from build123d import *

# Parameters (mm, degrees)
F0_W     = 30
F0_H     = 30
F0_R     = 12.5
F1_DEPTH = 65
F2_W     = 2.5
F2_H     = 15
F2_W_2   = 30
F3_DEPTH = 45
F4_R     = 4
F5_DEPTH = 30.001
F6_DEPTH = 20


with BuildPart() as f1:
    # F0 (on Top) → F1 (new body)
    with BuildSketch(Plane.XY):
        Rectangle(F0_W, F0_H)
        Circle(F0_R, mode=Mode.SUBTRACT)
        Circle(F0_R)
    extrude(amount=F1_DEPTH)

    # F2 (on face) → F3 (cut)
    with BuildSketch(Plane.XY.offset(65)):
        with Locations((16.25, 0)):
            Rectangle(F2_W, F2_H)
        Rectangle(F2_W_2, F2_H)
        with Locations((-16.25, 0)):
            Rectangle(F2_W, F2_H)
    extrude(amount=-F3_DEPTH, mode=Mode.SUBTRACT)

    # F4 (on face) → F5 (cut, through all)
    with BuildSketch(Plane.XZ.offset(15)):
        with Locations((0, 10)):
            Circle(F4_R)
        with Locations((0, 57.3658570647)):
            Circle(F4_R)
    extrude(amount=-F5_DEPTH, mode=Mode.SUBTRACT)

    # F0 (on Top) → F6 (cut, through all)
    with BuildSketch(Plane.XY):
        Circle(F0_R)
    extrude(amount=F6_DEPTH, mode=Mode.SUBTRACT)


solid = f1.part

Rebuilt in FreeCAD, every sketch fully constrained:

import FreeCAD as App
import Part
import Sketcher


def add_polygon(sketch, points):
    """Adds a closed chain of lines whose ends are joined by coincident constraints."""
    first, n = sketch.GeometryCount, len(points)
    for a, b in zip(points, points[1:] + points[:1]):
        sketch.addGeometry(Part.LineSegment(App.Vector(*a, 0), App.Vector(*b, 0)), False)
    for i in range(n):
        sketch.addConstraint(Sketcher.Constraint("Coincident", first + i, 2, first + (i + 1) % n, 1))

doc = App.newDocument("Part")
body = doc.addObject("PartDesign::Body", "Body")

# Sketch on XY plane
sketch1 = body.newObject("Sketcher::SketchObject", "Sketch")
sketch1.AttachmentSupport = (doc.getObject("XY_Plane"), [""])
sketch1.MapMode = "FlatFace"
add_polygon(sketch1, [(-15, 15), (-15, -15), (15, -15), (15, 15)])  # lines 0-3
sketch1.addConstraint([
    Sketcher.Constraint("Vertical", 0),
    Sketcher.Constraint("Horizontal", 1),
    Sketcher.Constraint("Vertical", 2),
    Sketcher.Constraint("Horizontal", 3),
    Sketcher.Constraint("Symmetric", 0, 2, 2, 2, -1, 1),
    Sketcher.Constraint("Equal", 3, 0),
    Sketcher.Constraint("DistanceX", 1, 1, 1, 2, 30.0),
])
pad1 = body.newObject("PartDesign::Pad", "Pad")
pad1.Profile = sketch1
pad1.Length = 65

# Sketch on XY plane
sketch2 = body.newObject("Sketcher::SketchObject", "Sketch001")
sketch2.AttachmentSupport = (doc.getObject("XY_Plane"), [""])
sketch2.MapMode = "FlatFace"
sketch2.AttachmentOffset = App.Placement(App.Vector(0, 0, 65), App.Rotation())
add_polygon(sketch2, [(18, -8), (18, 8), (-18, 8), (-18, -8)])  # lines 0-3
sketch2.addConstraint([
    Sketcher.Constraint("Vertical", 0),
    Sketcher.Constraint("Horizontal", 1),
    Sketcher.Constraint("Vertical", 2),
    Sketcher.Constraint("Horizontal", 3),
    Sketcher.Constraint("Symmetric", 0, 2, 2, 2, -1, 1),
    Sketcher.Constraint("DistanceX", 1, 2, 1, 1, 35.0),
    Sketcher.Constraint("DistanceY", 0, 1, 0, 2, 15.0),
])
pocket1 = body.newObject("PartDesign::Pocket", "Pocket")
pocket1.Profile = sketch2
pocket1.Length = 45

# Sketch on XZ plane
sketch3 = body.newObject("Sketcher::SketchObject", "Sketch002")
sketch3.AttachmentSupport = (doc.getObject("XZ_Plane"), [""])
sketch3.MapMode = "FlatFace"
sketch3.AttachmentOffset = App.Placement(App.Vector(0, 0, 15), App.Rotation())
sketch3.addGeometry([
    Part.Circle(App.Vector(0, 10, 0), App.Vector(0, 0, 1), 4),
    Part.Circle(App.Vector(0, 57.4, 0), App.Vector(0, 0, 1), 4),
], False)
sketch3.addConstraint([
    Sketcher.Constraint("Equal", 0, 1),
    Sketcher.Constraint("PointOnObject", 0, 3, -2),
    Sketcher.Constraint("PointOnObject", 1, 3, -2),
    Sketcher.Constraint("Diameter", 0, 8.0),
    Sketcher.Constraint("DistanceY", -1, 1, 0, 3, 10.0),
    Sketcher.Constraint("DistanceY", -1, 1, 1, 3, 57.365857),
])
pocket2 = body.newObject("PartDesign::Pocket", "Pocket001")
pocket2.Profile = sketch3
pocket2.Type = "ThroughAll"

# Sketch on XY plane
sketch4 = body.newObject("Sketcher::SketchObject", "Sketch003")
sketch4.AttachmentSupport = (doc.getObject("XY_Plane"), [""])
sketch4.MapMode = "FlatFace"
sketch4.addGeometry(Part.Circle(App.Vector(0, 0, 0), App.Vector(0, 0, 1), 12), False)
sketch4.addConstraint([
    Sketcher.Constraint("Coincident", 0, 3, -1, 1),
    Sketcher.Constraint("Diameter", 0, 25.0),
])
pocket3 = body.newObject("PartDesign::Pocket", "Pocket002")
pocket3.Profile = sketch4
pocket3.Length = 20
pocket3.Reversed = True

doc.recompute()
